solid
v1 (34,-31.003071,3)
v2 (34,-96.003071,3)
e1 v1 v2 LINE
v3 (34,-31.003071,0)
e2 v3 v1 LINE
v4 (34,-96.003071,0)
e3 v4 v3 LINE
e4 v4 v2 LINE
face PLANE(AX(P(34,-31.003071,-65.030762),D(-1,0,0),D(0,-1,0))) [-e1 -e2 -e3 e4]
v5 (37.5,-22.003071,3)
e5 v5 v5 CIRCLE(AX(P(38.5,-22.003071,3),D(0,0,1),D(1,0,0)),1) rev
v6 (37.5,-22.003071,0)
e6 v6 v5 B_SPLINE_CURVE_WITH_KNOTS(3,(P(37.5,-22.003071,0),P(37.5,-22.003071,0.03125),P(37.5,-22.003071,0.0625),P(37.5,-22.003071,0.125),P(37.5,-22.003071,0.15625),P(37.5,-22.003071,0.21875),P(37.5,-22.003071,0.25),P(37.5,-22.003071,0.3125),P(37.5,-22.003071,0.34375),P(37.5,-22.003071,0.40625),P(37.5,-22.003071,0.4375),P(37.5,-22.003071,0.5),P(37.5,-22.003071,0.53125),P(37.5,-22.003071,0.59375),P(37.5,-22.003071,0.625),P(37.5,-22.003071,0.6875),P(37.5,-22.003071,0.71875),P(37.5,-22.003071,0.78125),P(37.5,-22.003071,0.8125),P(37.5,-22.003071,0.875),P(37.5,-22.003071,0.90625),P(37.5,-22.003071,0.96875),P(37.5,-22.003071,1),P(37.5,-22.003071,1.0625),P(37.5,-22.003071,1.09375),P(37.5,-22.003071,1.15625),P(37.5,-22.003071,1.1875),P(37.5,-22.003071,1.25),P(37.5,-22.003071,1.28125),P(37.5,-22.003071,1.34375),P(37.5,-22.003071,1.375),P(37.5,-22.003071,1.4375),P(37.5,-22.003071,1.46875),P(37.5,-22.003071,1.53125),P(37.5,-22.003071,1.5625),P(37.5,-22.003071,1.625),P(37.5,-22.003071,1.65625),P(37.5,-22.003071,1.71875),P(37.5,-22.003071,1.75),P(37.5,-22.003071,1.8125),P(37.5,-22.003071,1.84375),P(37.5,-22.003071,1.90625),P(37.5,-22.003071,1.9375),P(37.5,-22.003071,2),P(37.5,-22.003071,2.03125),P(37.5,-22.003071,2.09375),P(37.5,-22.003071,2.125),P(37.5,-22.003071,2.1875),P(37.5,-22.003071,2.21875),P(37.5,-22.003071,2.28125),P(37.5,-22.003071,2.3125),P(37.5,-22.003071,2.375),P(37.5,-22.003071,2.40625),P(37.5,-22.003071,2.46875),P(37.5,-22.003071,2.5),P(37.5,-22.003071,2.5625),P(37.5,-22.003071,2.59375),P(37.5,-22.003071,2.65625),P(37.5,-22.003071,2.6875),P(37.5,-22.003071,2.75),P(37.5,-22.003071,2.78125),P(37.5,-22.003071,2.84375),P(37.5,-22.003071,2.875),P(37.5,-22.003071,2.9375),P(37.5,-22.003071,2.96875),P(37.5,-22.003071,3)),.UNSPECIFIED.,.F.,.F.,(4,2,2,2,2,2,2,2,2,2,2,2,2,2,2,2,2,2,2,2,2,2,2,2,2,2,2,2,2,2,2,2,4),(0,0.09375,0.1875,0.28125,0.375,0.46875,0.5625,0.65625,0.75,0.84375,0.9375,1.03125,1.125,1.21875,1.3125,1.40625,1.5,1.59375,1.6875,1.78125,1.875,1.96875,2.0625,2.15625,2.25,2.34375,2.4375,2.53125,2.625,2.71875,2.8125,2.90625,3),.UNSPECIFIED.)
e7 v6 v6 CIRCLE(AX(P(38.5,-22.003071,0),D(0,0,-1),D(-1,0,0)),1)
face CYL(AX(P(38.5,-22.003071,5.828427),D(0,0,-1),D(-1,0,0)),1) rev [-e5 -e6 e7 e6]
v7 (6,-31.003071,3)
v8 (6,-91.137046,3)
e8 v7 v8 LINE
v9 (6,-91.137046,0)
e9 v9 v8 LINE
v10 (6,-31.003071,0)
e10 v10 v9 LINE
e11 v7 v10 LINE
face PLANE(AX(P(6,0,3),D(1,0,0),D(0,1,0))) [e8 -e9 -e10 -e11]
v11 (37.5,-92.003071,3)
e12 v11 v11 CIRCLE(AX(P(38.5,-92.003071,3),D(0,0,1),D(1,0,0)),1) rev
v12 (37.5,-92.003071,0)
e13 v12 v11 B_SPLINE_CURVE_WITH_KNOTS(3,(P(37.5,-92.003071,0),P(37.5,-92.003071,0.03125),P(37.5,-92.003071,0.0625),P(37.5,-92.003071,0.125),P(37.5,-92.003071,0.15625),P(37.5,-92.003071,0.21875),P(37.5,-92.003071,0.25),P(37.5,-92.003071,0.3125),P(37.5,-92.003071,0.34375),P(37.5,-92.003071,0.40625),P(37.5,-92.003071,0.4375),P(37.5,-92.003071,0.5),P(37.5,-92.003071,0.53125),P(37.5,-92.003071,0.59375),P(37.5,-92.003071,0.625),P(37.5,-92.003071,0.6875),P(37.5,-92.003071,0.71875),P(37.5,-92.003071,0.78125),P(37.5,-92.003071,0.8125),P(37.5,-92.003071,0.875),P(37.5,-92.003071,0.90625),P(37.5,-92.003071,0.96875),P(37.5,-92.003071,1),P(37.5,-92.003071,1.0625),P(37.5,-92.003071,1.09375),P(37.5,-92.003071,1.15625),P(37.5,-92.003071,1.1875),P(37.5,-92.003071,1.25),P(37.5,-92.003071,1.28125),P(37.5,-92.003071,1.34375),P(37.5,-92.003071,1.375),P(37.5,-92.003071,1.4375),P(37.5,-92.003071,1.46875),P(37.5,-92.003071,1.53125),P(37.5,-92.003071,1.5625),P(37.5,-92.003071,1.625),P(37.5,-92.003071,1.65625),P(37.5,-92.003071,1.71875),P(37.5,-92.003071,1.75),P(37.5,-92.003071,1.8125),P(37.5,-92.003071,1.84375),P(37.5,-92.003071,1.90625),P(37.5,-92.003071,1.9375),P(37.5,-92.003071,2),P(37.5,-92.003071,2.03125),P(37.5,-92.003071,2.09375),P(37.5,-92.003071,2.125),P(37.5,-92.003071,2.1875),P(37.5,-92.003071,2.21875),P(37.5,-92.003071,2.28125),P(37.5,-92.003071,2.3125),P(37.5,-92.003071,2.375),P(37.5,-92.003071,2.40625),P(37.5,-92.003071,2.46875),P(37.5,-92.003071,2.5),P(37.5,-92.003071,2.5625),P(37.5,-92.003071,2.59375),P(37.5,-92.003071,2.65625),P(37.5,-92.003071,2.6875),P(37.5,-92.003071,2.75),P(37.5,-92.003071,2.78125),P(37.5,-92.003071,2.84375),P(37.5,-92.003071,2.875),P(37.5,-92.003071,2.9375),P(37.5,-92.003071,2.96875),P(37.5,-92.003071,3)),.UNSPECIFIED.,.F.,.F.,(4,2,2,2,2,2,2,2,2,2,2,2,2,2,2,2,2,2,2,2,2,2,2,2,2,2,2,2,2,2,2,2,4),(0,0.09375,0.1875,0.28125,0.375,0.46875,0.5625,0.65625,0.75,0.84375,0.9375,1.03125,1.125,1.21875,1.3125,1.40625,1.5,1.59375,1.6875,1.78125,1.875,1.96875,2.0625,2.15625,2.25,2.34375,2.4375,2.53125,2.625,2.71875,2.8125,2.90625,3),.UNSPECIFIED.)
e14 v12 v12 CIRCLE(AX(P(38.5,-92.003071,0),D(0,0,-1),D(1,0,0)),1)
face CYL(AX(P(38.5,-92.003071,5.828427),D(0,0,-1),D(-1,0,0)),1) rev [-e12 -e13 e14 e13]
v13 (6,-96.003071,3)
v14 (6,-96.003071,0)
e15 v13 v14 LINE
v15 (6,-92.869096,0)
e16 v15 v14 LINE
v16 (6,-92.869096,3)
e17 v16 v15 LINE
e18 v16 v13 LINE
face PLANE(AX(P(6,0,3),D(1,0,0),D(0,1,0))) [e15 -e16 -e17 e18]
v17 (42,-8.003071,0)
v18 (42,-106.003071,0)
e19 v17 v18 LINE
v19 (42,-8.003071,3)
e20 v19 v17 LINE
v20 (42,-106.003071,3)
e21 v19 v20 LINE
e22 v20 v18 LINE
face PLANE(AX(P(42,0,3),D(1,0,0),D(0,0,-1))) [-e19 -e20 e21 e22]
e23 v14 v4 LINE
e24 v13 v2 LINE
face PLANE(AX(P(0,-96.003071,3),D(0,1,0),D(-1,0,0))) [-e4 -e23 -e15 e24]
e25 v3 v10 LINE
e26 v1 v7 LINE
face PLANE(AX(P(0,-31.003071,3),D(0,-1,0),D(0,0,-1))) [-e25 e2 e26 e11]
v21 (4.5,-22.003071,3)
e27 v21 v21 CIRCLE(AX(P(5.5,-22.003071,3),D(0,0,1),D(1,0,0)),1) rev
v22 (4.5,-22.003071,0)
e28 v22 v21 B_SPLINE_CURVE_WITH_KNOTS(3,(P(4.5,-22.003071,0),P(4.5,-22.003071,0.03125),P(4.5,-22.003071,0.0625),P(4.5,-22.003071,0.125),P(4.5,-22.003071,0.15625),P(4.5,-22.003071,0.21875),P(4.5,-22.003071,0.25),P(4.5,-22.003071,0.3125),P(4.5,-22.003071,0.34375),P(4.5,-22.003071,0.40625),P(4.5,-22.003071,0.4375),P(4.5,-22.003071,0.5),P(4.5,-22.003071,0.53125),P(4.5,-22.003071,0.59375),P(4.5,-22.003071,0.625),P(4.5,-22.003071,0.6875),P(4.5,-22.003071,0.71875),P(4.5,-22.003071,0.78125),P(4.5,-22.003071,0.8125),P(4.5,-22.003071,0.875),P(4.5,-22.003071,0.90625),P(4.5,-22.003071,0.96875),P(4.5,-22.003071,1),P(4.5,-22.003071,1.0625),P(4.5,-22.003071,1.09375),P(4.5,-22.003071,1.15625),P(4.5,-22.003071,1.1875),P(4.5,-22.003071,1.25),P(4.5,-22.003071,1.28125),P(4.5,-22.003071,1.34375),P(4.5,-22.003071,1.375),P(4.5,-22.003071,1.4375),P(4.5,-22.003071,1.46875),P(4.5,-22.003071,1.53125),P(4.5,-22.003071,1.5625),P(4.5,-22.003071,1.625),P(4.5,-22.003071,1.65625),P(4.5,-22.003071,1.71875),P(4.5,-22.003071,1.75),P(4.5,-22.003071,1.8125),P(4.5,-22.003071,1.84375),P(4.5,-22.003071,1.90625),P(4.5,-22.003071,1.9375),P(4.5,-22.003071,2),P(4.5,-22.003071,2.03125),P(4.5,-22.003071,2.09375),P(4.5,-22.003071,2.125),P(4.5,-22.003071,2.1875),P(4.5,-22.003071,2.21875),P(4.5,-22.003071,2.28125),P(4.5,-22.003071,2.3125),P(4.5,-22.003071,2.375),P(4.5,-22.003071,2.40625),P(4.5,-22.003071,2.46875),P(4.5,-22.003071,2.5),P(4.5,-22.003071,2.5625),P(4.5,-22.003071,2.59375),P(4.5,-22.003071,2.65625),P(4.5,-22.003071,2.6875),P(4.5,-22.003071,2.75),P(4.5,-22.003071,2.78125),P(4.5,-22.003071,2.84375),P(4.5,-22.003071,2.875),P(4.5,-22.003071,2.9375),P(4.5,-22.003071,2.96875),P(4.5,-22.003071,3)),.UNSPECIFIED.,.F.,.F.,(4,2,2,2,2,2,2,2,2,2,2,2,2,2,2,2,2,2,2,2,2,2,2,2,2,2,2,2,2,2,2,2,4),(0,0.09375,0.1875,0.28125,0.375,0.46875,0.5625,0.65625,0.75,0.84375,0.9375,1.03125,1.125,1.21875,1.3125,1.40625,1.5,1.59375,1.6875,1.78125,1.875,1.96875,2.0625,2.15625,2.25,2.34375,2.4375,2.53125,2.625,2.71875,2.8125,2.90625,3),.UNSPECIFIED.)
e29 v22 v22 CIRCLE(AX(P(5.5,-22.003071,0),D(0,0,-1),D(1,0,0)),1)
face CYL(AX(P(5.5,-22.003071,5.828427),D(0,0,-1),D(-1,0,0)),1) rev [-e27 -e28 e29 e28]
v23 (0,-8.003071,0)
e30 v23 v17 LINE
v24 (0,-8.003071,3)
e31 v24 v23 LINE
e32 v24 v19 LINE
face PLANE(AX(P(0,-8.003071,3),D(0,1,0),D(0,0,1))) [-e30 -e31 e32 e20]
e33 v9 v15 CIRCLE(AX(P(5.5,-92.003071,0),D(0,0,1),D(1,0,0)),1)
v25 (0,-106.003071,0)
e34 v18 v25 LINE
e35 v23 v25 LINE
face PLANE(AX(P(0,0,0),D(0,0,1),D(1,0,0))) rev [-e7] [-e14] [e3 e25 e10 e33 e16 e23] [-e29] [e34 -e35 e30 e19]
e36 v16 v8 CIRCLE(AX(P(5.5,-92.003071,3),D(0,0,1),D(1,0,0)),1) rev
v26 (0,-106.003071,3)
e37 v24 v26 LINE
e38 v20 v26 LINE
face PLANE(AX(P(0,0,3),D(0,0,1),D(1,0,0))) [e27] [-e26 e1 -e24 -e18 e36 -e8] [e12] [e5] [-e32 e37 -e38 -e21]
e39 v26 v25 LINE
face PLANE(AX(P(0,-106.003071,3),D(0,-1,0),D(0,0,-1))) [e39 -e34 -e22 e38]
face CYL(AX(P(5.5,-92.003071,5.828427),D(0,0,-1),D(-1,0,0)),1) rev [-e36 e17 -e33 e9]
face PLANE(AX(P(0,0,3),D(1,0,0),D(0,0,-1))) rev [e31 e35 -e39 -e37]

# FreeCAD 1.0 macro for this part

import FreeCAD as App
import Part
import Sketcher
from FreeCAD import Vector
Q = App.Units.Quantity

doc = App.newDocument("Part")
body = doc.addObject("PartDesign::Body", "Body")

# Sketch on XY plane
sketch1 = body.newObject("Sketcher::SketchObject", "Sketch")
sketch1.AttachmentSupport = (doc.getObject("XY_Plane"), [""])
sketch1.MapMode = "FlatFace"
sketch1.addGeometry([
    Part.LineSegment(Vector(0, -106, 0), Vector(42, -106, 0)),  # 0
    Part.LineSegment(Vector(42, -106, 0), Vector(42, -8, 0)),  # 1
    Part.LineSegment(Vector(42, -8, 0), Vector(0, -8, 0)),  # 2
    Part.LineSegment(Vector(0, -8, 0), Vector(0, -106, 0)),  # 3
    Part.LineSegment(Vector(36, -96, 0), Vector(6, -96, 0)),  # 4
    Part.LineSegment(Vector(6, -96, 0), Vector(6, -31, 0)),  # 5
    Part.LineSegment(Vector(6, -31, 0), Vector(36, -31, 0)),  # 6
    Part.LineSegment(Vector(36, -31, 0), Vector(36, -96, 0)),  # 7
], False)
sketch1.addConstraint([
    Sketcher.Constraint("Coincident", 0, 2, 1, 1),
    Sketcher.Constraint("Coincident", 1, 2, 2, 1),
    Sketcher.Constraint("Coincident", 2, 2, 3, 1),
    Sketcher.Constraint("Coincident", 3, 2, 0, 1),
    Sketcher.Constraint("Coincident", 4, 2, 5, 1),
    Sketcher.Constraint("Coincident", 5, 2, 6, 1),
    Sketcher.Constraint("Coincident", 6, 2, 7, 1),
    Sketcher.Constraint("Coincident", 7, 2, 4, 1),
    Sketcher.Constraint("Horizontal", 0),
    Sketcher.Constraint("Vertical", 1),
    Sketcher.Constraint("Horizontal", 2),
    Sketcher.Constraint("Vertical", 3),
    Sketcher.Constraint("Horizontal", 4),
    Sketcher.Constraint("Vertical", 5),
    Sketcher.Constraint("Horizontal", 6),
    Sketcher.Constraint("Vertical", 7),
    Sketcher.Constraint("PointOnObject", 2, 2, -2),
    Sketcher.Constraint("DistanceX", 0, 1, 0, 2, Q("42 mm")),
    Sketcher.Constraint("DistanceX", 4, 2, 4, 1, Q("30 mm")),
    Sketcher.Constraint("DistanceY", 1, 1, 1, 2, Q("98 mm")),
    Sketcher.Constraint("DistanceY", 5, 1, 5, 2, Q("65 mm")),
    Sketcher.Constraint("DistanceX", -1, 1, 4, 2, Q("6 mm")),
    Sketcher.Constraint("DistanceY", 3, 2, 4, 2, Q("10 mm")),
    Sketcher.Constraint("DistanceY", 0, 2, -1, 1, Q("106.003071 mm")),
])
pad1 = body.newObject("PartDesign::Pad", "Pad")
pad1.Profile = sketch1
pad1.Length = 3

# Sketch on XY plane
sketch2 = body.newObject("Sketcher::SketchObject", "Sketch001")
sketch2.AttachmentSupport = (doc.getObject("XY_Plane"), [""])
sketch2.MapMode = "FlatFace"
sketch2.addGeometry([
    Part.Circle(Vector(38.5, -22, 0), Vector(0, 0, 1), 1),
    Part.Circle(Vector(5.5, -22, 0), Vector(0, 0, 1), 1),
    Part.Circle(Vector(5.5, -92, 0), Vector(0, 0, 1), 1),
    Part.Circle(Vector(38.5, -92, 0), Vector(0, 0, 1), 1),
], False)
sketch2.addConstraint([
    Sketcher.Constraint("Equal", 0, 1),
    Sketcher.Constraint("Equal", 1, 2),
    Sketcher.Constraint("Equal", 2, 3),
    Sketcher.Constraint("Horizontal", 0, 3, 1, 3),
    Sketcher.Constraint("Horizontal", 2, 3, 3, 3),
    Sketcher.Constraint("Vertical", 1, 3, 2, 3),
    Sketcher.Constraint("Vertical", 0, 3, 3, 3),
    Sketcher.Constraint("Diameter", 0, Q("2 mm")),
    Sketcher.Constraint("DistanceX", 1, 3, 0, 3, Q("33 mm")),
    Sketcher.Constraint("DistanceY", 2, 3, 1, 3, Q("70 mm")),
    Sketcher.Constraint("DistanceX", -1, 1, 0, 3, Q("38.5 mm")),
    Sketcher.Constraint("DistanceY", 0, 3, -1, 1, Q("22.003071 mm")),
])
pocket1 = body.newObject("PartDesign::Pocket", "Pocket")
pocket1.Profile = sketch2
pocket1.Length = 3
pocket1.Reversed = True

# Sketch on XY plane
sketch3 = body.newObject("Sketcher::SketchObject", "Sketch002")
sketch3.AttachmentSupport = (doc.getObject("XY_Plane"), [""])
sketch3.MapMode = "FlatFace"
sketch3.AttachmentOffset = App.Placement(Vector(0, 0, 3), App.Rotation())
sketch3.addGeometry([
    Part.LineSegment(Vector(34, -31, 0), Vector(34, -96, 0)),
    Part.LineSegment(Vector(34, -96, 0), Vector(36, -96, 0)),
    Part.LineSegment(Vector(36, -96, 0), Vector(36, -31, 0)),
    Part.LineSegment(Vector(36, -31, 0), Vector(34, -31, 0)),
], False)
sketch3.addConstraint([
    Sketcher.Constraint("Coincident", 0, 2, 1, 1),
    Sketcher.Constraint("Coincident", 1, 2, 2, 1),
    Sketcher.Constraint("Coincident", 2, 2, 3, 1),
    Sketcher.Constraint("Coincident", 3, 2, 0, 1),
    Sketcher.Constraint("Vertical", 0),
    Sketcher.Constraint("Horizontal", 1),
    Sketcher.Constraint("Vertical", 2),
    Sketcher.Constraint("Horizontal", 3),
    Sketcher.Constraint("DistanceX", 1, 1, 1, 2, Q("2 mm")),
    Sketcher.Constraint("DistanceY", 0, 2, 0, 1, Q("65 mm")),
    Sketcher.Constraint("DistanceX", -1, 1, 0, 2, Q("34 mm")),
    Sketcher.Constraint("DistanceY", 0, 2, -1, 1, Q("96.003071 mm")),
])
pad2 = body.newObject("PartDesign::Pad", "Pad001")
pad2.Profile = sketch3
pad2.Length = 3
pad2.Reversed = True

doc.recompute()
